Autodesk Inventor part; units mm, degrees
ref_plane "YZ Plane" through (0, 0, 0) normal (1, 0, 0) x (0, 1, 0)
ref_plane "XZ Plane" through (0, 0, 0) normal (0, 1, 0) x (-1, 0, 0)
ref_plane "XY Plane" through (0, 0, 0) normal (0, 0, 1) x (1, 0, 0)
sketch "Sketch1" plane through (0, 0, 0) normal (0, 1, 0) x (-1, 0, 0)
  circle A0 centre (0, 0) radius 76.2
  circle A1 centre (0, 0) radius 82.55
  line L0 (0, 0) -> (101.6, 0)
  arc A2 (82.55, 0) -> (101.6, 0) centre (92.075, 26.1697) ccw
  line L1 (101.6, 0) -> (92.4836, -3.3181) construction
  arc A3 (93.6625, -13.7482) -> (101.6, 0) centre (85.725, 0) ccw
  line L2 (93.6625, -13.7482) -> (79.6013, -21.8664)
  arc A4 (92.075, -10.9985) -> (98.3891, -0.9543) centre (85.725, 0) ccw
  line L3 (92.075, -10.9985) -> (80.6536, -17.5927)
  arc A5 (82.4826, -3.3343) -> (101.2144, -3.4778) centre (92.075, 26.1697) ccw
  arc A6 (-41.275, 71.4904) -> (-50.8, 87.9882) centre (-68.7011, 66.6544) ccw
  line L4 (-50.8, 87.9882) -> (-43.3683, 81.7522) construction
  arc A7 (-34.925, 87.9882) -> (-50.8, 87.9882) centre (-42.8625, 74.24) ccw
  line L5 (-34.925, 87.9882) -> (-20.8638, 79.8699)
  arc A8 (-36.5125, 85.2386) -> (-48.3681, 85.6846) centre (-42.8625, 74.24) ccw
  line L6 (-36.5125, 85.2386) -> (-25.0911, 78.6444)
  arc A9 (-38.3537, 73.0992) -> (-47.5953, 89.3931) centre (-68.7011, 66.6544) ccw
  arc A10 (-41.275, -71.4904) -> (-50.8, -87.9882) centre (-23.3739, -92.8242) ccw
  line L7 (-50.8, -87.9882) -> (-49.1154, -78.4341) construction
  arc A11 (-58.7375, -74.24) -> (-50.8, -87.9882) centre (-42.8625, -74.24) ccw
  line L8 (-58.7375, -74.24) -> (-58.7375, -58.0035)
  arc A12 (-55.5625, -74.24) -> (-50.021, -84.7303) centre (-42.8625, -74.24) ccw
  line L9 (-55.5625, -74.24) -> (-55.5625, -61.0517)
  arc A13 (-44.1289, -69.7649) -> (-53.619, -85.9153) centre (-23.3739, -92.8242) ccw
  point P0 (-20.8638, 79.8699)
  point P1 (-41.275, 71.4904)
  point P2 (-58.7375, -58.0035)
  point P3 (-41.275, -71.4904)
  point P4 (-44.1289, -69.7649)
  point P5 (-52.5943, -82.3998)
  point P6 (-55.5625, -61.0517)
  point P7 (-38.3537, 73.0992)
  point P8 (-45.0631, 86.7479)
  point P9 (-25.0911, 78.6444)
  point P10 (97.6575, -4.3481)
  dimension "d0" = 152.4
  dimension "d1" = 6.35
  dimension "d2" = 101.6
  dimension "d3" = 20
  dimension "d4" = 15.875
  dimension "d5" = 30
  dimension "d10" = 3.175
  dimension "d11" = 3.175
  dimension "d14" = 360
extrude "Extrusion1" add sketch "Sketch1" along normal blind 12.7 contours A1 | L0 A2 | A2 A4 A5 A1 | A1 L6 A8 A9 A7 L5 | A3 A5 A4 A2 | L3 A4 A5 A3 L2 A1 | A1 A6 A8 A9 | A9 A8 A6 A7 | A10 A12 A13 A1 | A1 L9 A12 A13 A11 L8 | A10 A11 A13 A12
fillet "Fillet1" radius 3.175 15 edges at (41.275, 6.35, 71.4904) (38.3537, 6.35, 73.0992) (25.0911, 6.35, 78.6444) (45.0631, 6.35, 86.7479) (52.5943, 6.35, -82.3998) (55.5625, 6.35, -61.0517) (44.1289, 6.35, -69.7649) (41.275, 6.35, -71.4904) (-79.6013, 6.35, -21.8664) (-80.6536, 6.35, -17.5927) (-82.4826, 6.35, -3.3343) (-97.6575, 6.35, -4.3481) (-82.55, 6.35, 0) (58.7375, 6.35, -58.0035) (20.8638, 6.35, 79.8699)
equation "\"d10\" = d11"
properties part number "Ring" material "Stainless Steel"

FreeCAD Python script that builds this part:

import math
import FreeCAD as App
import Part
import Sketcher
Q = App.Units.Quantity


def edges_at(feature, points):
    """Names of the edges that pass closest to the given points."""
    edges = feature.Shape.Edges
    near = lambda p: min(range(len(edges)), key=lambda i: edges[i].distToShape(Part.Vertex(*p))[0])
    return sorted({f"Edge{near(p) + 1}" for p in points})

doc = App.newDocument("Part")
body = doc.addObject("PartDesign::Body", "Body")

sketch1 = doc.addObject("Sketcher::SketchObject", "Sketch")
body.addObject(sketch1)
sketch1.AttachmentSupport = (doc.XZ_Plane, [""])
sketch1.MapMode = "FlatFace"
sketch1.addGeometry([
    Part.ArcOfCircle(Part.Circle(App.Vector(0, 0, 0), App.Vector(0, 0, 1), 83), math.radians(-165), math.radians(-60)),
    Part.LineSegment(App.Vector(-80, -22, 0), App.Vector(-94, -14, 0)),
    Part.ArcOfCircle(Part.Circle(App.Vector(-86, 0, 0), App.Vector(0, 0, 1), 16), math.radians(180), math.radians(240)),
    Part.LineSegment(App.Vector(-102, 0, 0), App.Vector(-83, 0, 0)),
    Part.ArcOfCircle(Part.Circle(App.Vector(0, 0, 0), App.Vector(0, 0, 1), 83), math.radians(75), math.radians(180)),
    Part.LineSegment(App.Vector(21, 80, 0), App.Vector(35, 88, 0)),
    Part.ArcOfCircle(Part.Circle(App.Vector(43, 74, 0), App.Vector(0, 0, 1), 16), math.radians(60), math.radians(120)),
    Part.ArcOfCircle(Part.Circle(App.Vector(69, 67, 0), App.Vector(0, 0, 1), 28), math.radians(130), math.radians(170)),
    Part.ArcOfCircle(Part.Circle(App.Vector(0, 0, 0), App.Vector(0, 0, 1), 83), math.radians(-45), math.radians(60)),
    Part.LineSegment(App.Vector(59, -58, 0), App.Vector(59, -74, 0)),
    Part.ArcOfCircle(Part.Circle(App.Vector(43, -74, 0), App.Vector(0, 0, 1), 16), math.radians(-60), math.radians(0)),
    Part.ArcOfCircle(Part.Circle(App.Vector(23, -93, 0), App.Vector(0, 0, 1), 28), math.radians(10), math.radians(50)),
    Part.ArcOfCircle(Part.Circle(App.Vector(0, 0, 0), App.Vector(0, 0, 1), 83), math.radians(-177.69), math.radians(-167.7)),
    Part.ArcOfCircle(Part.Circle(App.Vector(-92, 26, 0), App.Vector(0, 0, 1), 31), math.radians(-100), math.radians(-72)),
    Part.ArcOfCircle(Part.Circle(App.Vector(-86, 0, 0), App.Vector(0, 0, 1), 13), math.radians(-160), math.radians(-120)),
    Part.LineSegment(App.Vector(-92, -11, 0), App.Vector(-81, -18, 0)),
    Part.ArcOfCircle(Part.Circle(App.Vector(0, 0, 0), App.Vector(0, 0, 1), 83), math.radians(-57.69), math.radians(-47.7)),
    Part.ArcOfCircle(Part.Circle(App.Vector(23, -93, 0), App.Vector(0, 0, 1), 31), math.radians(20), math.radians(48)),
    Part.ArcOfCircle(Part.Circle(App.Vector(43, -74, 0), App.Vector(0, 0, 1), 13), math.radians(-40), math.radians(0)),
    Part.LineSegment(App.Vector(56, -74, 0), App.Vector(56, -61, 0)),
    Part.ArcOfCircle(Part.Circle(App.Vector(0, 0, 0), App.Vector(0, 0, 1), 83), math.radians(62.31), math.radians(72.3)),
    Part.ArcOfCircle(Part.Circle(App.Vector(69, 67, 0), App.Vector(0, 0, 1), 31), math.radians(140), math.radians(168)),
    Part.ArcOfCircle(Part.Circle(App.Vector(43, 74, 0), App.Vector(0, 0, 1), 13), math.radians(80), math.radians(120)),
    Part.LineSegment(App.Vector(37, 85, 0), App.Vector(25, 79, 0)),
    Part.Circle(App.Vector(0, 0, 0), App.Vector(0, 0, 1), 76),
], False)
sketch1.addConstraint([
    Sketcher.Constraint("Coincident", 0, 1, 1, 1),
    Sketcher.Constraint("Tangent", 1, 2, 2, 2),
    Sketcher.Constraint("Coincident", 2, 1, 3, 1),
    Sketcher.Constraint("Coincident", 3, 2, 4, 2),
    Sketcher.Constraint("Coincident", 4, 1, 5, 1),
    Sketcher.Constraint("Tangent", 5, 2, 6, 2),
    Sketcher.Constraint("Coincident", 6, 1, 7, 1),
    Sketcher.Constraint("Coincident", 7, 2, 8, 2),
    Sketcher.Constraint("Coincident", 8, 1, 9, 1),
    Sketcher.Constraint("Tangent", 9, 2, 10, 2),
    Sketcher.Constraint("Coincident", 10, 1, 11, 1),
    Sketcher.Constraint("Coincident", 11, 2, 0, 2),
    Sketcher.Constraint("Coincident", 12, 1, 13, 2),
    Sketcher.Constraint("Coincident", 13, 1, 14, 1),
    Sketcher.Constraint("Tangent", 14, 2, 15, 1),
    Sketcher.Constraint("Coincident", 15, 2, 12, 2),
    Sketcher.Constraint("Coincident", 16, 1, 17, 2),
    Sketcher.Constraint("Coincident", 17, 1, 18, 1),
    Sketcher.Constraint("Tangent", 18, 2, 19, 1),
    Sketcher.Constraint("Coincident", 19, 2, 16, 2),
    Sketcher.Constraint("Coincident", 20, 1, 21, 2),
    Sketcher.Constraint("Coincident", 21, 1, 22, 1),
    Sketcher.Constraint("Tangent", 22, 2, 23, 1),
    Sketcher.Constraint("Coincident", 23, 2, 20, 2),
    Sketcher.Constraint("Horizontal", 3),
    Sketcher.Constraint("Vertical", 9),
    Sketcher.Constraint("Vertical", 19),
    Sketcher.Constraint("Coincident", 0, 3, -1, 1),
    Sketcher.Constraint("Coincident", 4, 3, -1, 1),
    Sketcher.Constraint("Coincident", 8, 3, -1, 1),
    Sketcher.Constraint("Coincident", 12, 3, -1, 1),
    Sketcher.Constraint("Coincident", 16, 3, -1, 1),
    Sketcher.Constraint("Coincident", 20, 3, -1, 1),
    Sketcher.Constraint("Coincident", 24, 3, -1, 1),
    Sketcher.Constraint("Coincident", 14, 3, 2, 3),
    Sketcher.Constraint("Coincident", 17, 3, 11, 3),
    Sketcher.Constraint("Coincident", 18, 3, 10, 3),
    Sketcher.Constraint("Coincident", 21, 3, 7, 3),
    Sketcher.Constraint("Coincident", 22, 3, 6, 3),
    Sketcher.Constraint("Equal", 0, 4),
    Sketcher.Constraint("Equal", 2, 6),
    Sketcher.Constraint("Equal", 4, 8),
    Sketcher.Constraint("Equal", 6, 10),
    Sketcher.Constraint("Equal", 7, 11),
    Sketcher.Constraint("Equal", 8, 12),
    Sketcher.Constraint("Equal", 12, 16),
    Sketcher.Constraint("Equal", 13, 17),
    Sketcher.Constraint("Equal", 14, 18),
    Sketcher.Constraint("Equal", 16, 20),
    Sketcher.Constraint("Equal", 17, 21),
    Sketcher.Constraint("Equal", 18, 22),
    Sketcher.Constraint("Symmetric", 6, 3, 10, 3, -1),
    Sketcher.Constraint("PointOnObject", 2, 3, -1),
    Sketcher.Constraint("PointOnObject", 2, 1, -1),
    Sketcher.Constraint("Parallel", 1, 15),
    Sketcher.Constraint("Parallel", 5, 23),
    Sketcher.Constraint("Horizontal", 5, 2, 6, 1),
    Sketcher.Constraint("Vertical", 6, 1, 10, 1),
    Sketcher.Constraint("Vertical", 7, 2, 11, 2),
    Sketcher.Constraint("Vertical", 13, 3, 14, 2),
    Sketcher.Constraint("Equal", 1, 5),
    Sketcher.Constraint("Equal", 15, 23),
    Sketcher.Constraint("Diameter", 24, Q("6 in")),
    Sketcher.Constraint("DistanceX", 2, 1, -1, 1, Q("4 in")),
    Sketcher.Constraint("Angle", 5, Q("30.0002 deg")),
    Sketcher.Constraint("Angle", 15, Q("-30.0002 deg")),
    Sketcher.Constraint("Radius", 2, Q("0.625 in")),
    Sketcher.Constraint("Radius", 14, Q("0.5 in")),
    Sketcher.Constraint("Radius", 0, Q("3.25 in")),
    Sketcher.Constraint("DistanceX", 5, 2, 7, 2, Q("0.25 in")),
    Sketcher.Constraint("DistanceX", -1, 1, 20, 1, Q("1.51 in")),
    Sketcher.Constraint("Radius", 7, 27.8492),
    Sketcher.Constraint("DistanceY", 1, 2, 12, 1, Q("0.41 in")),
])
pad1 = doc.addObject("PartDesign::Pad", "Pad")
body.addObject(pad1)
pad1.Profile = sketch1
pad1.Length = Q("0.5 in")
pad1.Reversed = True
doc.recompute()

fillet = doc.addObject("PartDesign::Fillet", "Fillet")
body.addObject(fillet)
fillet.Base = (pad1, edges_at(pad1, [
    (41.275, 6.35, 71.49),
    (38.354, 6.35, 73.099),
    (25.091, 6.35, 78.644),
    (45.063, 6.35, 86.748),
    (52.594, 6.35, -82.4),
    (55.562, 6.35, -61.052),
    (44.129, 6.35, -69.765),
    (41.275, 6.35, -71.49),
    (-79.601, 6.35, -21.866),
    (-80.654, 6.35, -17.593),
    (-82.483, 6.35, -3.334),
    (-97.657, 6.35, -4.348),
    (-82.55, 6.35, 0),
    (58.737, 6.35, -58.004),
    (20.864, 6.35, 79.87),
]))
fillet.Radius = Q("0.125 in")

doc.recompute()
